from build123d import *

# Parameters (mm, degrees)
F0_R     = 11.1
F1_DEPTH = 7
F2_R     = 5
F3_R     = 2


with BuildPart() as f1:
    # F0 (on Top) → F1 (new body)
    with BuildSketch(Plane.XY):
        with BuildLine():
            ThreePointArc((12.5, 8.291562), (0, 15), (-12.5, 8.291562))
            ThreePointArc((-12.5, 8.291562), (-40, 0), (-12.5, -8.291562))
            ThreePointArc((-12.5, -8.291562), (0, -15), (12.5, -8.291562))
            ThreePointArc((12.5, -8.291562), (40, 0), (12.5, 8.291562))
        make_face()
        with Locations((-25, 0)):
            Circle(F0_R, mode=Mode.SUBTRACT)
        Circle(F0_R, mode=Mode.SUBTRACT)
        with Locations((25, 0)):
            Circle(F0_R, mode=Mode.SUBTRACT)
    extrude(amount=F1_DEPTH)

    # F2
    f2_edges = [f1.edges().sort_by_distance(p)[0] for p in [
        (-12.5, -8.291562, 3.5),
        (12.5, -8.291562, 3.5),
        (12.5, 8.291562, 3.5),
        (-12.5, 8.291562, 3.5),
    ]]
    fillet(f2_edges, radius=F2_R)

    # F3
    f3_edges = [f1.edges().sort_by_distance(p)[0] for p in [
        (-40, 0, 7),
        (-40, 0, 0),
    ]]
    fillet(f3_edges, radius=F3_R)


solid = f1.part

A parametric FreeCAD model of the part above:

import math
import FreeCAD as App
import Part
import Sketcher
from FreeCAD import Vector


def edges_at(feature, points):
    """Names of the edges that pass closest to the given points."""
    edges = feature.Shape.Edges
    near = lambda p: min(range(len(edges)), key=lambda i: edges[i].distToShape(Part.Vertex(*p))[0])
    return sorted({f"Edge{near(p) + 1}" for p in points})

doc = App.newDocument("Part")
params = doc.addObject("Spreadsheet::Sheet", "Params")
for row, (alias, value) in enumerate([
    ("sketch1_radius", "15 mm"),
    ("sketch1_diameter", "22.2 mm"),
    ("pad1_length", "7 mm"),
    ("fillet_radius", "5 mm"),
    ("fillet2_radius", "2 mm"),
], start=1):
    params.set(f"A{row}", alias)
    params.set(f"B{row}", "=" + value)
    params.setAlias(f"B{row}", alias)

body = doc.addObject("PartDesign::Body", "Body")

# Sketch on XY plane
sketch1 = body.newObject("Sketcher::SketchObject", "Sketch")
sketch1.AttachmentSupport = (doc.getObject("XY_Plane"), [""])
sketch1.MapMode = "FlatFace"
sketch1.addGeometry([
    Part.ArcOfCircle(Part.Circle(Vector(0, 0, 0), Vector(0, 0, 1), 15), math.radians(34), math.radians(146)),  # 0
    Part.ArcOfCircle(Part.Circle(Vector(-25, 0, 0), Vector(0, 0, 1), 15), math.radians(34), math.radians(326)),  # 1
    Part.ArcOfCircle(Part.Circle(Vector(0, 0, 0), Vector(0, 0, 1), 15), math.radians(-146), math.radians(-34)),  # 2
    Part.ArcOfCircle(Part.Circle(Vector(25, 0, 0), Vector(0, 0, 1), 15), math.radians(-146), math.radians(146)),  # 3
    Part.Circle(Vector(-25, 0, 0), Vector(0, 0, 1), 11),  # 4
    Part.Circle(Vector(0, 0, 0), Vector(0, 0, 1), 11),  # 5
    Part.Circle(Vector(25, 0, 0), Vector(0, 0, 1), 11),  # 6
], False)
sketch1.addConstraint([
    Sketcher.Constraint("Coincident", 0, 2, 1, 1),
    Sketcher.Constraint("Coincident", 1, 2, 2, 1),
    Sketcher.Constraint("Coincident", 2, 2, 3, 1),
    Sketcher.Constraint("Coincident", 3, 2, 0, 1),
    Sketcher.Constraint("Coincident", 0, 3, -1, 1),
    Sketcher.Constraint("Coincident", 2, 3, -1, 1),
    Sketcher.Constraint("Coincident", 5, 3, -1, 1),
    Sketcher.Constraint("Coincident", 4, 3, 1, 3),
    Sketcher.Constraint("Coincident", 6, 3, 3, 3),
    Sketcher.Constraint("Equal", 0, 1),
    Sketcher.Constraint("Equal", 1, 2),
    Sketcher.Constraint("Equal", 2, 3),
    Sketcher.Constraint("Equal", 4, 5),
    Sketcher.Constraint("Equal", 5, 6),
    Sketcher.Constraint("Symmetric", 1, 3, 3, 3, -1, 1),
    Sketcher.Constraint("PointOnObject", 1, 3, -1),
    Sketcher.Constraint("Radius", 0, 15.0),
    Sketcher.Constraint("Diameter", 4, 22.2),
    Sketcher.Constraint("DistanceX", 1, 3, -1, 1, 25.0),
])
sketch1.setExpression("Constraints[16]", "Params.sketch1_radius")
sketch1.setExpression("Constraints[17]", "Params.sketch1_diameter")
pad1 = body.newObject("PartDesign::Pad", "Pad")
pad1.Profile = sketch1
pad1.setExpression("Length", "Params.pad1_length")
doc.recompute()

fillet = body.newObject("PartDesign::Fillet", "Fillet")
fillet.Base = (pad1, edges_at(pad1, [
    (-12.5, -8.292, 3.5),
    (12.5, -8.292, 3.5),
    (12.5, 8.292, 3.5),
    (-12.5, 8.292, 3.5),
]))
fillet.setExpression("Radius", "Params.fillet_radius")
doc.recompute()

fillet2 = body.newObject("PartDesign::Fillet", "Fillet001")
fillet2.Base = (fillet, edges_at(fillet, [(-40, 0, 7), (-40, 0, 0)]))
fillet2.setExpression("Radius", "Params.fillet2_radius")

doc.recompute()
